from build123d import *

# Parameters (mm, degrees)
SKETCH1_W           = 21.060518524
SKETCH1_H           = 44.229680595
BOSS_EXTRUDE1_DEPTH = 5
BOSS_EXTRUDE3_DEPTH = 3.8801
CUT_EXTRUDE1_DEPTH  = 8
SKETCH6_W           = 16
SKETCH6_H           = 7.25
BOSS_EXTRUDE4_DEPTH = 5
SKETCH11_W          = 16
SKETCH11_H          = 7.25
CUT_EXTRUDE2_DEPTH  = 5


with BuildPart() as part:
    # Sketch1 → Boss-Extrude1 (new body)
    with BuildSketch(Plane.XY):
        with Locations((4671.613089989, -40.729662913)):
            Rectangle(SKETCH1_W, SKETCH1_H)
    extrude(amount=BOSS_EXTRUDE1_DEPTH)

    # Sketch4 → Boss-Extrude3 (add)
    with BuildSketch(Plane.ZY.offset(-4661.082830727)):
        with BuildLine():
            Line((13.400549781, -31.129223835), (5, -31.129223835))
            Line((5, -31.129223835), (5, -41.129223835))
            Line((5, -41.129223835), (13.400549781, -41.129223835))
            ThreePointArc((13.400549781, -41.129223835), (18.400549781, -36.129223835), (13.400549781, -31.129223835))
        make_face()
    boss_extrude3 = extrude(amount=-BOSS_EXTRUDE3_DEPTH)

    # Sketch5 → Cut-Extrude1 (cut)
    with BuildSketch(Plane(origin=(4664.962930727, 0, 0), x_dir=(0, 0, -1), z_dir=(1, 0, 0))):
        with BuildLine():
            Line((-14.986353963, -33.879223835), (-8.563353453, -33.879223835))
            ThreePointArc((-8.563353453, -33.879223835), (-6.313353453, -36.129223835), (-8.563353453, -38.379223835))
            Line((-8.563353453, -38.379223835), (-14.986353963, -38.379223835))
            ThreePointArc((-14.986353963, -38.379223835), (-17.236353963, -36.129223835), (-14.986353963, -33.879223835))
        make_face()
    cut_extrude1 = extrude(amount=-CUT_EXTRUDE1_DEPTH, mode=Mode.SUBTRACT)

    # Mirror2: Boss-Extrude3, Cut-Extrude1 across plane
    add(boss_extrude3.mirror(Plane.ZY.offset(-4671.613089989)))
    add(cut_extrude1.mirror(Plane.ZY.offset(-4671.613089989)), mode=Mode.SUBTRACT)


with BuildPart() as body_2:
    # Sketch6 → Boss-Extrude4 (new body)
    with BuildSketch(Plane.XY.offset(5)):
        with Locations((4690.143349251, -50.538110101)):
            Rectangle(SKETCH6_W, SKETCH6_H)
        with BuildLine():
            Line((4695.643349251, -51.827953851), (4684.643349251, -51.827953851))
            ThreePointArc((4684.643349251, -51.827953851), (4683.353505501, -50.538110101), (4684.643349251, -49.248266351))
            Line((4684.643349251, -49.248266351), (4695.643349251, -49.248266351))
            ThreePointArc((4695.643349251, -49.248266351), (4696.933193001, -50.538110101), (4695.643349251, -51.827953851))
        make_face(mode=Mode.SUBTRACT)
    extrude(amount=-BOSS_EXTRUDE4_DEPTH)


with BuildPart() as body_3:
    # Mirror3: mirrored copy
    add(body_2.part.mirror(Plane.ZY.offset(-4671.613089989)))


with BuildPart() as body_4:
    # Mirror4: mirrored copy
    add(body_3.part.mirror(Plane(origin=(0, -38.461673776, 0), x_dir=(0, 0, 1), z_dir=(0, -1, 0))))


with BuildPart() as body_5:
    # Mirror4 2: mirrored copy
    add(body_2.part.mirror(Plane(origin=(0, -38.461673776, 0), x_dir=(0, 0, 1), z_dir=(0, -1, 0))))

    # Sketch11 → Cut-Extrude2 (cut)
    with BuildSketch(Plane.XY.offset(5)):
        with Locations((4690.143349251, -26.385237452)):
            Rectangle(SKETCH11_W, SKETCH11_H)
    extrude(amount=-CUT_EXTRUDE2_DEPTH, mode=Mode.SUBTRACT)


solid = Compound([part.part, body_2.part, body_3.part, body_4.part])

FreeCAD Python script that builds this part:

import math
import FreeCAD as App
import Part
import Sketcher

V = App.Vector


def add_polygon(sketch, points):
    """Adds a closed chain of lines whose ends are joined by coincident constraints."""
    first, n = sketch.GeometryCount, len(points)
    for a, b in zip(points, points[1:] + points[:1]):
        sketch.addGeometry(Part.LineSegment(App.Vector(*a, 0), App.Vector(*b, 0)), False)
    for i in range(n):
        sketch.addConstraint(Sketcher.Constraint("Coincident", first + i, 2, first + (i + 1) % n, 1))

doc = App.newDocument("Part")
params = doc.addObject("Spreadsheet::Sheet", "Params")
for row, (alias, value) in enumerate([
    ("pad1_length", "5 mm"),
    ("sketch2_radius", "5 mm"),
    ("pad2_length", "3.8801 mm"),
    ("sketch3_radius", "2.25 mm"),
    ("pocket1_length", "8 mm"),
    ("sketch4_width", "16 mm"),
    ("sketch4_width2", "11 mm"),
    ("sketch4_height", "7.25 mm"),
    ("pad3_length", "5 mm"),
    ("sketch5_width", "16 mm"),
    ("sketch5_height", "7.25 mm"),
    ("pocket2_length", "5 mm"),
], start=1):
    params.set(f"A{row}", alias)
    params.set(f"B{row}", "=" + value)
    params.setAlias(f"B{row}", alias)

body = doc.addObject("PartDesign::Body", "Body")

sketch1 = body.newObject("Sketcher::SketchObject", "Sketch")
sketch1.AttachmentSupport = (doc.getObject("XY_Plane"), [""])
sketch1.MapMode = "FlatFace"
add_polygon(sketch1, [(4661, -19), (4661, -63), (4682, -63), (4682, -19)])
sketch1.addConstraint([
    Sketcher.Constraint("Vertical", 0),
    Sketcher.Constraint("Horizontal", 1),
    Sketcher.Constraint("Vertical", 2),
    Sketcher.Constraint("Horizontal", 3),
    Sketcher.Constraint("DistanceX", 1, 1, 1, 2, 21.060519),
    Sketcher.Constraint("DistanceY", 0, 2, 0, 1, 44.229681),
    Sketcher.Constraint("DistanceX", -1, 1, 0, 2, 4661.082831),
    Sketcher.Constraint("DistanceY", 0, 2, -1, 1, 62.844503),
])
pad1 = body.newObject("PartDesign::Pad", "Pad")
pad1.Profile = sketch1
pad1.setExpression("Length", "Params.pad1_length")

sketch2 = body.newObject("Sketcher::SketchObject", "Sketch001")
sketch2.AttachmentSupport = (doc.getObject("YZ_Plane"), [""])
sketch2.MapMode = "FlatFace"
sketch2.AttachmentOffset = App.Placement(V(0, 0, 4661.082831), App.Rotation())
sketch2.addGeometry([
    Part.LineSegment(V(-31, 13, 0), V(-31, 5, 0)),
    Part.LineSegment(V(-31, 5, 0), V(-41, 5, 0)),
    Part.LineSegment(V(-41, 5, 0), V(-41, 13, 0)),
    Part.ArcOfCircle(Part.Circle(V(-36, 13, 0), V(0, 0, 1), 5), math.radians(0), math.radians(180)),
], False)
sketch2.addConstraint([
    Sketcher.Constraint("Coincident", 0, 2, 1, 1),
    Sketcher.Constraint("Coincident", 1, 2, 2, 1),
    Sketcher.Constraint("Tangent", 2, 2, 3, 2),
    Sketcher.Constraint("Tangent", 3, 1, 0, 1),
    Sketcher.Constraint("Vertical", 0),
    Sketcher.Constraint("Horizontal", 1),
    Sketcher.Constraint("Vertical", 2),
    Sketcher.Constraint("Radius", 3, 5.0),
    Sketcher.Constraint("DistanceY", -1, 1, 0, 2, 5.0),
    Sketcher.Constraint("DistanceY", 0, 2, 0, 1, 8.40055),
    Sketcher.Constraint("DistanceX", 3, 3, -1, 1, 36.129224),
])
sketch2.setExpression("Constraints[7]", "Params.sketch2_radius")
pad2 = body.newObject("PartDesign::Pad", "Pad001")
pad2.Profile = sketch2
pad2.setExpression("Length", "Params.pad2_length")

sketch3 = body.newObject("Sketcher::SketchObject", "Sketch002")
sketch3.AttachmentSupport = (doc.getObject("YZ_Plane"), [""])
sketch3.MapMode = "FlatFace"
sketch3.AttachmentOffset = App.Placement(V(0, 0, 4664.962931), App.Rotation())
sketch3.addGeometry([
    Part.LineSegment(V(-33.9, 8.6, 0), V(-33.9, 15, 0)),
    Part.ArcOfCircle(Part.Circle(V(-36.1, 15, 0), V(0, 0, 1), 2.2), math.radians(0), math.radians(180)),
    Part.LineSegment(V(-38.4, 15, 0), V(-38.4, 8.6, 0)),
    Part.ArcOfCircle(Part.Circle(V(-36.1, 8.6, 0), V(0, 0, 1), 2.2), math.radians(180), math.radians(360)),
], False)
sketch3.addConstraint([
    Sketcher.Constraint("Tangent", 0, 2, 1, 1),
    Sketcher.Constraint("Tangent", 1, 2, 2, 1),
    Sketcher.Constraint("Tangent", 2, 2, 3, 1),
    Sketcher.Constraint("Tangent", 3, 2, 0, 1),
    Sketcher.Constraint("Vertical", 0),
    Sketcher.Constraint("Vertical", 2),
    Sketcher.Constraint("Radius", 1, 2.25),
    Sketcher.Constraint("DistanceY", 0, 1, 0, 2, 6.423001),
    Sketcher.Constraint("DistanceX", 1, 3, -1, 1, 36.129224),
    Sketcher.Constraint("DistanceY", -1, 1, 1, 3, 14.986354),
])
sketch3.setExpression("Constraints[6]", "Params.sketch3_radius")
pocket1 = body.newObject("PartDesign::Pocket", "Pocket")
pocket1.Profile = sketch3
pocket1.setExpression("Length", "Params.pocket1_length")
doc.recompute()

datumplane = body.newObject("PartDesign::Plane", "DatumPlane")
datumplane.AttachmentSupport = (doc.getObject("YZ_Plane"), [""])
datumplane.MapMode = "FlatFace"
datumplane.AttachmentOffset = App.Placement(V(0, 0, 4671.61309), App.Rotation())
mirrored = body.newObject("PartDesign::Mirrored", "Mirrored")
mirrored.Originals = [pad2, pocket1]
mirrored.MirrorPlane = (datumplane, [""])
body.Tip = mirrored
body2 = doc.addObject("PartDesign::Body", "Body001")

sketch4 = body2.newObject("Sketcher::SketchObject", "Sketch003")
sketch4.AttachmentSupport = (doc.getObject("XY_Plane001"), [""])
sketch4.MapMode = "FlatFace"
sketch4.AttachmentOffset = App.Placement(V(0, 0, 5), App.Rotation())
add_polygon(sketch4, [(4682.1, -46.9), (4682.1, -54.2), (4698.1, -54.2), (4698.1, -46.9)])
sketch4.addGeometry(Part.ArcOfCircle(Part.Circle(V(4695.6, -50.5, 0), V(0, 0, 1), 1.3), math.radians(-90), math.radians(90)), False)
sketch4.addGeometry(Part.LineSegment(V(4695.6, -51.8, 0), V(4684.6, -51.8, 0)), False)
sketch4.addGeometry(Part.ArcOfCircle(Part.Circle(V(4684.6, -50.5, 0), V(0, 0, 1), 1.3), math.radians(90), math.radians(270)), False)
sketch4.addGeometry(Part.LineSegment(V(4684.6, -49.2, 0), V(4695.6, -49.2, 0)), False)
sketch4.addConstraint([
    Sketcher.Constraint("Tangent", 4, 1, 5, 1),
    Sketcher.Constraint("Tangent", 5, 2, 6, 2),
    Sketcher.Constraint("Tangent", 6, 1, 7, 1),
    Sketcher.Constraint("Tangent", 7, 2, 4, 2),
    Sketcher.Constraint("Vertical", 0),
    Sketcher.Constraint("Horizontal", 1),
    Sketcher.Constraint("Vertical", 2),
    Sketcher.Constraint("Horizontal", 3),
    Sketcher.Constraint("Horizontal", 5),
    Sketcher.Constraint("Horizontal", 7),
    Sketcher.Constraint("DistanceX", 1, 1, 1, 2, 16.0),
    Sketcher.Constraint("DistanceX", 5, 2, 5, 1, 11.0),
    Sketcher.Constraint("DistanceY", 0, 2, 0, 1, 7.25),
    Sketcher.Constraint("DistanceX", 0, 2, 6, 3, 2.5),
    Sketcher.Constraint("Radius", 4, 1.289844),
    Sketcher.Constraint("DistanceY", 0, 2, 6, 3, 3.625),
    Sketcher.Constraint("DistanceX", -1, 1, 4, 3, 4695.643349),
    Sketcher.Constraint("DistanceY", 4, 3, -1, 1, 50.53811),
])
sketch4.setExpression("Constraints[14]", "Params.sketch4_width")
sketch4.setExpression("Constraints[15]", "Params.sketch4_width2")
sketch4.setExpression("Constraints[16]", "Params.sketch4_height")
pad3 = body2.newObject("PartDesign::Pad", "Pad002")
pad3.Profile = sketch4
pad3.setExpression("Length", "Params.pad3_length")
pad3.Reversed = True
body3 = doc.addObject("PartDesign::Body", "Body002")
doc.recompute()

mirroring = doc.addObject("Part::Mirroring", "Mirroring")
mirroring.Source = body2
mirroring.Base = V(4671.61309, 0, 0)
mirroring.Normal = V(-1, 0, 0)
body3.BaseFeature = mirroring
doc.recompute()
body4 = doc.addObject("PartDesign::Body", "Body003")
doc.recompute()

mirroring2 = doc.addObject("Part::Mirroring", "Mirroring001")
mirroring2.Source = body3
mirroring2.Base = V(0, -38.461674, 0)
mirroring2.Normal = V(0, -1, 0)
body4.BaseFeature = mirroring2
doc.recompute()
body5 = doc.addObject("PartDesign::Body", "Body004")
doc.recompute()

mirroring3 = doc.addObject("Part::Mirroring", "Mirroring002")
mirroring3.Source = body2
mirroring3.Base = V(0, -38.461674, 0)
mirroring3.Normal = V(0, -1, 0)
body5.BaseFeature = mirroring3
doc.recompute()

sketch5 = body5.newObject("Sketcher::SketchObject", "Sketch004")
sketch5.AttachmentSupport = (doc.getObject("XY_Plane004"), [""])
sketch5.MapMode = "FlatFace"
sketch5.AttachmentOffset = App.Placement(V(0, 0, 5), App.Rotation())
add_polygon(sketch5, [(4682, -23), (4682, -30), (4698, -30), (4698, -23)])
sketch5.addConstraint([
    Sketcher.Constraint("Vertical", 0),
    Sketcher.Constraint("Horizontal", 1),
    Sketcher.Constraint("Vertical", 2),
    Sketcher.Constraint("Horizontal", 3),
    Sketcher.Constraint("DistanceX", 1, 1, 1, 2, 16.0),
    Sketcher.Constraint("DistanceY", 0, 2, 0, 1, 7.25),
    Sketcher.Constraint("DistanceX", -1, 1, 0, 2, 4682.143349),
    Sketcher.Constraint("DistanceY", 0, 2, -1, 1, 30.010237),
])
sketch5.setExpression("Constraints[8]", "Params.sketch5_width")
sketch5.setExpression("Constraints[9]", "Params.sketch5_height")
pocket2 = body5.newObject("PartDesign::Pocket", "Pocket001")
pocket2.Profile = sketch5
pocket2.setExpression("Length", "Params.pocket2_length")
mirroring.Visibility = False
mirroring2.Visibility = False
mirroring3.Visibility = False

doc.recompute()
